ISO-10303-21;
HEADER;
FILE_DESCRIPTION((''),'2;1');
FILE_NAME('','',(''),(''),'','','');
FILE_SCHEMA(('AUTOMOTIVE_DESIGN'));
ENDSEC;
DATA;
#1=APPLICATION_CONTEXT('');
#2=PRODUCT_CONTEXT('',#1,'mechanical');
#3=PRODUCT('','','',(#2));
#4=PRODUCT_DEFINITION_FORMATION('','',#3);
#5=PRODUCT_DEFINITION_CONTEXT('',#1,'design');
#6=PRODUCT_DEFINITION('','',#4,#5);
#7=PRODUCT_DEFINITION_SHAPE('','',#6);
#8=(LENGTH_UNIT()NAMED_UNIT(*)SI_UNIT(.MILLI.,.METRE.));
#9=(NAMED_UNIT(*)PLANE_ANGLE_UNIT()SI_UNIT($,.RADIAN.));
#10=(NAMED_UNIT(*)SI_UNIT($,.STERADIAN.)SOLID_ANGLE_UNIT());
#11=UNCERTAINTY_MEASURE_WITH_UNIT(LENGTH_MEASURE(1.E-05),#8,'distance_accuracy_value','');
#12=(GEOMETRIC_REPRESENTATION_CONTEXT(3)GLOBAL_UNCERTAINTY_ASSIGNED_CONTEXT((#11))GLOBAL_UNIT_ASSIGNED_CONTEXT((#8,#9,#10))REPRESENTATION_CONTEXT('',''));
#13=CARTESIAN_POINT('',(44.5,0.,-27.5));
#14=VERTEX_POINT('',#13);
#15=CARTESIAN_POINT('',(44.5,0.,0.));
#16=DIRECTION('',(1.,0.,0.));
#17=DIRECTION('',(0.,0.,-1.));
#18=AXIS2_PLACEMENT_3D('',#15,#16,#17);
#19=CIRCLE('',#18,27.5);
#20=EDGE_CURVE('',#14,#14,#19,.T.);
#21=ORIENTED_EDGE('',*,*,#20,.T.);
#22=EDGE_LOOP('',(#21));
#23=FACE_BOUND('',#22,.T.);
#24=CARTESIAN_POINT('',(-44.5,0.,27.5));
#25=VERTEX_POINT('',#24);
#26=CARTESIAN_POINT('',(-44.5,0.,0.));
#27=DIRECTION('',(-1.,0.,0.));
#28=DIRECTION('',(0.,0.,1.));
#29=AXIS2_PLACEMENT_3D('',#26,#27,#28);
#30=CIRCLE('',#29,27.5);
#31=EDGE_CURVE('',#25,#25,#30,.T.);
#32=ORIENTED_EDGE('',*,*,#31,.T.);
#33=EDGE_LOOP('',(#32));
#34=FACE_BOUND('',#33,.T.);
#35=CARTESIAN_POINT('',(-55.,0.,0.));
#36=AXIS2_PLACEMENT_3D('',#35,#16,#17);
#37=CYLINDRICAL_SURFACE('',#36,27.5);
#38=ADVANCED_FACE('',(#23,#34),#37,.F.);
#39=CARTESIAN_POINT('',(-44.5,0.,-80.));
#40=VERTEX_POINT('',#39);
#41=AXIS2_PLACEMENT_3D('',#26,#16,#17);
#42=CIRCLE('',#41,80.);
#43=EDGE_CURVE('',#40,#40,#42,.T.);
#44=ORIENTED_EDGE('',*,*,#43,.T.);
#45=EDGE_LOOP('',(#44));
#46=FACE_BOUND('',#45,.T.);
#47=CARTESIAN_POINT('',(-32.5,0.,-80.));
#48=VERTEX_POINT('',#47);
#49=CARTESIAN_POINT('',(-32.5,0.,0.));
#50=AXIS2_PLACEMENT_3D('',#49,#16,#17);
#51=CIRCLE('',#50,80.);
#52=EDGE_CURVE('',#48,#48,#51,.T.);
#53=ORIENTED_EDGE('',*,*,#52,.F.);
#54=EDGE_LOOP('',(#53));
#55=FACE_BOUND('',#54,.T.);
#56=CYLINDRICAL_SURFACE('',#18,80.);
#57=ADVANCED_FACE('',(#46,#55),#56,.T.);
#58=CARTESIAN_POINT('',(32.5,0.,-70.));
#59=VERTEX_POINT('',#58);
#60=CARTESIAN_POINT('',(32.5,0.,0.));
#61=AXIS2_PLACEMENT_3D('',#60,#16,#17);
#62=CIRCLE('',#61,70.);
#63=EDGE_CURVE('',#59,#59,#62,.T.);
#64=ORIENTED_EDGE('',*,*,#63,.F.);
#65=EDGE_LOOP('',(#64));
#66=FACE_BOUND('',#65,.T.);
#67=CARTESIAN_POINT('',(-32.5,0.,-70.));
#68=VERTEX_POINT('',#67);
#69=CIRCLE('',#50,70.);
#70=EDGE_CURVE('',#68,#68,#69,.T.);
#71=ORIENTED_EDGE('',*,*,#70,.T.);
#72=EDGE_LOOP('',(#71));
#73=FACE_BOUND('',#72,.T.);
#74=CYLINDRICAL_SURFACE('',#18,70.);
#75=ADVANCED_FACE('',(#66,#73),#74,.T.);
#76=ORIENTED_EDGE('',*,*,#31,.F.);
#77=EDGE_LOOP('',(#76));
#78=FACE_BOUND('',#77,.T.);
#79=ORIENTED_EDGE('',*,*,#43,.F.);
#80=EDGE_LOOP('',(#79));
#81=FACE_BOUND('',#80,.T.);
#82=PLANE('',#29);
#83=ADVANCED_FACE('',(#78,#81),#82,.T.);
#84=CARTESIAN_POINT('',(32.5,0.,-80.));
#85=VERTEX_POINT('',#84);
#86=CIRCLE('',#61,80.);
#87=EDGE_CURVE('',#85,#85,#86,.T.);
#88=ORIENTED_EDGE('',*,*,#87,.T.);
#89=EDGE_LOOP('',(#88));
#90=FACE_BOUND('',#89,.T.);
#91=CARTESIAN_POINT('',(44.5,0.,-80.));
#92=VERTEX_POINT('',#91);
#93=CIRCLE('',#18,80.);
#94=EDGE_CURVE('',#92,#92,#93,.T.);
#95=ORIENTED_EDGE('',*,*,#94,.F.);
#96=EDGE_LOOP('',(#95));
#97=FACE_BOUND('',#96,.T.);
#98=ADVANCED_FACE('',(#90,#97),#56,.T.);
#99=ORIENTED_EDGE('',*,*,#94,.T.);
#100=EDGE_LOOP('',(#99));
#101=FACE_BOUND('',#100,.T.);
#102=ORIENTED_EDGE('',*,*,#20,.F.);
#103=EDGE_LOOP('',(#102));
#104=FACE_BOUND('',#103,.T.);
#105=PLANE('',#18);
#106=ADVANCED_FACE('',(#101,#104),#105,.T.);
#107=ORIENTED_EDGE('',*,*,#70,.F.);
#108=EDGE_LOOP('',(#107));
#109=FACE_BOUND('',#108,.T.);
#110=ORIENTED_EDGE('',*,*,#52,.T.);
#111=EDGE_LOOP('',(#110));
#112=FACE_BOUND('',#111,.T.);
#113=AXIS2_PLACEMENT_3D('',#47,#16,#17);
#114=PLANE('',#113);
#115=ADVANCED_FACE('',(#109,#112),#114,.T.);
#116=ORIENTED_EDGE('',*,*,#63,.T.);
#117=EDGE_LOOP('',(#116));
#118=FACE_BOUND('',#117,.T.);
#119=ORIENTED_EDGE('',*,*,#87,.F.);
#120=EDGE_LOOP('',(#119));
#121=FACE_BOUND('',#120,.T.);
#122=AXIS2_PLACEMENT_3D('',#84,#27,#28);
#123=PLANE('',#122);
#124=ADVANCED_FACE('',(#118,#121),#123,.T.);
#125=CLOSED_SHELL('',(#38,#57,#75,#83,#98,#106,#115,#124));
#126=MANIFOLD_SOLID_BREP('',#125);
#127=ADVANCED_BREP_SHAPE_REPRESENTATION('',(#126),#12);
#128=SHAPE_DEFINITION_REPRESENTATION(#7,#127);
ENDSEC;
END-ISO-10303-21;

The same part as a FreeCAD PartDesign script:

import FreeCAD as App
import Part
import Sketcher
from FreeCAD import Vector
Q = App.Units.Quantity


def add_polygon(sketch, points):
    """Adds a closed chain of lines whose ends are joined by coincident constraints."""
    first, n = sketch.GeometryCount, len(points)
    for a, b in zip(points, points[1:] + points[:1]):
        sketch.addGeometry(Part.LineSegment(App.Vector(*a, 0), App.Vector(*b, 0)), False)
    for i in range(n):
        sketch.addConstraint(Sketcher.Constraint("Coincident", first + i, 2, first + (i + 1) % n, 1))

doc = App.newDocument("Part")
params = doc.addObject("Spreadsheet::Sheet", "Params")
for row, (alias, value) in enumerate([
    ("sketch1_width", "89 mm"),
    ("sketch1_width2", "12 mm"),
    ("sketch1_height", "80 mm"),
    ("sketch1_height2", "10 mm"),
    ("revolution_angle", "360 deg"),
    ("sketch2_diameter", "55 mm"),
    ("pocket1_length", "110 mm"),
], start=1):
    params.set(f"A{row}", alias)
    params.set(f"B{row}", "=" + value)
    params.setAlias(f"B{row}", alias)

body = doc.addObject("PartDesign::Body", "Body")

# Sketch on XZ plane
sketch1 = doc.addObject("Sketcher::SketchObject", "Sketch")
body.addObject(sketch1)
sketch1.AttachmentSupport = (doc.XZ_Plane, [""])
sketch1.MapMode = "FlatFace"
add_polygon(sketch1, [(-44, 0), (44, 0), (44, -80), (32, -80), (32, -70), (-32, -70), (-32, -80), (-44, -80)])  # lines 0-7
sketch1.addConstraint([
    Sketcher.Constraint("Horizontal", 0),
    Sketcher.Constraint("Vertical", 1),
    Sketcher.Constraint("Horizontal", 2),
    Sketcher.Constraint("Vertical", 3),
    Sketcher.Constraint("Horizontal", 4),
    Sketcher.Constraint("Vertical", 5),
    Sketcher.Constraint("Horizontal", 6),
    Sketcher.Constraint("Vertical", 7),
    Sketcher.Constraint("Symmetric", 0, 2, 7, 2, -1, 1),
    Sketcher.Constraint("Symmetric", 2, 2, 5, 2, -2),
    Sketcher.Constraint("DistanceX", 0, 1, 0, 2, Q("89 mm")),
    Sketcher.Constraint("DistanceX", 2, 2, 2, 1, Q("12 mm")),
    Sketcher.Constraint("DistanceY", 1, 2, 1, 1, Q("80 mm")),
    Sketcher.Constraint("DistanceY", 3, 1, 3, 2, Q("10 mm")),
])
sketch1.setExpression("Constraints[18]", "Params.sketch1_width")
sketch1.setExpression("Constraints[19]", "Params.sketch1_width2")
sketch1.setExpression("Constraints[20]", "Params.sketch1_height")
sketch1.setExpression("Constraints[21]", "Params.sketch1_height2")
revolution = doc.addObject("PartDesign::Revolution", "Revolution")
body.addObject(revolution)
revolution.Profile = sketch1
revolution.ReferenceAxis = (sketch1, ["H_Axis"])
revolution.setExpression("Angle", "Params.revolution_angle")

# Sketch on YZ plane
sketch2 = doc.addObject("Sketcher::SketchObject", "Sketch001")
body.addObject(sketch2)
sketch2.AttachmentSupport = (doc.YZ_Plane, [""])
sketch2.MapMode = "FlatFace"
sketch2.addGeometry(Part.Circle(Vector(0, 0, 0), Vector(0, 0, 1), 28), False)
sketch2.addConstraint([
    Sketcher.Constraint("Coincident", 0, 3, -1, 1),
    Sketcher.Constraint("Diameter", 0, Q("55 mm")),
])
sketch2.setExpression("Constraints[1]", "Params.sketch2_diameter")
pocket1 = doc.addObject("PartDesign::Pocket", "Pocket")
body.addObject(pocket1)
pocket1.Profile = sketch2
pocket1.setExpression("Length", "Params.pocket1_length")
pocket1.Midplane = True

doc.recompute()
